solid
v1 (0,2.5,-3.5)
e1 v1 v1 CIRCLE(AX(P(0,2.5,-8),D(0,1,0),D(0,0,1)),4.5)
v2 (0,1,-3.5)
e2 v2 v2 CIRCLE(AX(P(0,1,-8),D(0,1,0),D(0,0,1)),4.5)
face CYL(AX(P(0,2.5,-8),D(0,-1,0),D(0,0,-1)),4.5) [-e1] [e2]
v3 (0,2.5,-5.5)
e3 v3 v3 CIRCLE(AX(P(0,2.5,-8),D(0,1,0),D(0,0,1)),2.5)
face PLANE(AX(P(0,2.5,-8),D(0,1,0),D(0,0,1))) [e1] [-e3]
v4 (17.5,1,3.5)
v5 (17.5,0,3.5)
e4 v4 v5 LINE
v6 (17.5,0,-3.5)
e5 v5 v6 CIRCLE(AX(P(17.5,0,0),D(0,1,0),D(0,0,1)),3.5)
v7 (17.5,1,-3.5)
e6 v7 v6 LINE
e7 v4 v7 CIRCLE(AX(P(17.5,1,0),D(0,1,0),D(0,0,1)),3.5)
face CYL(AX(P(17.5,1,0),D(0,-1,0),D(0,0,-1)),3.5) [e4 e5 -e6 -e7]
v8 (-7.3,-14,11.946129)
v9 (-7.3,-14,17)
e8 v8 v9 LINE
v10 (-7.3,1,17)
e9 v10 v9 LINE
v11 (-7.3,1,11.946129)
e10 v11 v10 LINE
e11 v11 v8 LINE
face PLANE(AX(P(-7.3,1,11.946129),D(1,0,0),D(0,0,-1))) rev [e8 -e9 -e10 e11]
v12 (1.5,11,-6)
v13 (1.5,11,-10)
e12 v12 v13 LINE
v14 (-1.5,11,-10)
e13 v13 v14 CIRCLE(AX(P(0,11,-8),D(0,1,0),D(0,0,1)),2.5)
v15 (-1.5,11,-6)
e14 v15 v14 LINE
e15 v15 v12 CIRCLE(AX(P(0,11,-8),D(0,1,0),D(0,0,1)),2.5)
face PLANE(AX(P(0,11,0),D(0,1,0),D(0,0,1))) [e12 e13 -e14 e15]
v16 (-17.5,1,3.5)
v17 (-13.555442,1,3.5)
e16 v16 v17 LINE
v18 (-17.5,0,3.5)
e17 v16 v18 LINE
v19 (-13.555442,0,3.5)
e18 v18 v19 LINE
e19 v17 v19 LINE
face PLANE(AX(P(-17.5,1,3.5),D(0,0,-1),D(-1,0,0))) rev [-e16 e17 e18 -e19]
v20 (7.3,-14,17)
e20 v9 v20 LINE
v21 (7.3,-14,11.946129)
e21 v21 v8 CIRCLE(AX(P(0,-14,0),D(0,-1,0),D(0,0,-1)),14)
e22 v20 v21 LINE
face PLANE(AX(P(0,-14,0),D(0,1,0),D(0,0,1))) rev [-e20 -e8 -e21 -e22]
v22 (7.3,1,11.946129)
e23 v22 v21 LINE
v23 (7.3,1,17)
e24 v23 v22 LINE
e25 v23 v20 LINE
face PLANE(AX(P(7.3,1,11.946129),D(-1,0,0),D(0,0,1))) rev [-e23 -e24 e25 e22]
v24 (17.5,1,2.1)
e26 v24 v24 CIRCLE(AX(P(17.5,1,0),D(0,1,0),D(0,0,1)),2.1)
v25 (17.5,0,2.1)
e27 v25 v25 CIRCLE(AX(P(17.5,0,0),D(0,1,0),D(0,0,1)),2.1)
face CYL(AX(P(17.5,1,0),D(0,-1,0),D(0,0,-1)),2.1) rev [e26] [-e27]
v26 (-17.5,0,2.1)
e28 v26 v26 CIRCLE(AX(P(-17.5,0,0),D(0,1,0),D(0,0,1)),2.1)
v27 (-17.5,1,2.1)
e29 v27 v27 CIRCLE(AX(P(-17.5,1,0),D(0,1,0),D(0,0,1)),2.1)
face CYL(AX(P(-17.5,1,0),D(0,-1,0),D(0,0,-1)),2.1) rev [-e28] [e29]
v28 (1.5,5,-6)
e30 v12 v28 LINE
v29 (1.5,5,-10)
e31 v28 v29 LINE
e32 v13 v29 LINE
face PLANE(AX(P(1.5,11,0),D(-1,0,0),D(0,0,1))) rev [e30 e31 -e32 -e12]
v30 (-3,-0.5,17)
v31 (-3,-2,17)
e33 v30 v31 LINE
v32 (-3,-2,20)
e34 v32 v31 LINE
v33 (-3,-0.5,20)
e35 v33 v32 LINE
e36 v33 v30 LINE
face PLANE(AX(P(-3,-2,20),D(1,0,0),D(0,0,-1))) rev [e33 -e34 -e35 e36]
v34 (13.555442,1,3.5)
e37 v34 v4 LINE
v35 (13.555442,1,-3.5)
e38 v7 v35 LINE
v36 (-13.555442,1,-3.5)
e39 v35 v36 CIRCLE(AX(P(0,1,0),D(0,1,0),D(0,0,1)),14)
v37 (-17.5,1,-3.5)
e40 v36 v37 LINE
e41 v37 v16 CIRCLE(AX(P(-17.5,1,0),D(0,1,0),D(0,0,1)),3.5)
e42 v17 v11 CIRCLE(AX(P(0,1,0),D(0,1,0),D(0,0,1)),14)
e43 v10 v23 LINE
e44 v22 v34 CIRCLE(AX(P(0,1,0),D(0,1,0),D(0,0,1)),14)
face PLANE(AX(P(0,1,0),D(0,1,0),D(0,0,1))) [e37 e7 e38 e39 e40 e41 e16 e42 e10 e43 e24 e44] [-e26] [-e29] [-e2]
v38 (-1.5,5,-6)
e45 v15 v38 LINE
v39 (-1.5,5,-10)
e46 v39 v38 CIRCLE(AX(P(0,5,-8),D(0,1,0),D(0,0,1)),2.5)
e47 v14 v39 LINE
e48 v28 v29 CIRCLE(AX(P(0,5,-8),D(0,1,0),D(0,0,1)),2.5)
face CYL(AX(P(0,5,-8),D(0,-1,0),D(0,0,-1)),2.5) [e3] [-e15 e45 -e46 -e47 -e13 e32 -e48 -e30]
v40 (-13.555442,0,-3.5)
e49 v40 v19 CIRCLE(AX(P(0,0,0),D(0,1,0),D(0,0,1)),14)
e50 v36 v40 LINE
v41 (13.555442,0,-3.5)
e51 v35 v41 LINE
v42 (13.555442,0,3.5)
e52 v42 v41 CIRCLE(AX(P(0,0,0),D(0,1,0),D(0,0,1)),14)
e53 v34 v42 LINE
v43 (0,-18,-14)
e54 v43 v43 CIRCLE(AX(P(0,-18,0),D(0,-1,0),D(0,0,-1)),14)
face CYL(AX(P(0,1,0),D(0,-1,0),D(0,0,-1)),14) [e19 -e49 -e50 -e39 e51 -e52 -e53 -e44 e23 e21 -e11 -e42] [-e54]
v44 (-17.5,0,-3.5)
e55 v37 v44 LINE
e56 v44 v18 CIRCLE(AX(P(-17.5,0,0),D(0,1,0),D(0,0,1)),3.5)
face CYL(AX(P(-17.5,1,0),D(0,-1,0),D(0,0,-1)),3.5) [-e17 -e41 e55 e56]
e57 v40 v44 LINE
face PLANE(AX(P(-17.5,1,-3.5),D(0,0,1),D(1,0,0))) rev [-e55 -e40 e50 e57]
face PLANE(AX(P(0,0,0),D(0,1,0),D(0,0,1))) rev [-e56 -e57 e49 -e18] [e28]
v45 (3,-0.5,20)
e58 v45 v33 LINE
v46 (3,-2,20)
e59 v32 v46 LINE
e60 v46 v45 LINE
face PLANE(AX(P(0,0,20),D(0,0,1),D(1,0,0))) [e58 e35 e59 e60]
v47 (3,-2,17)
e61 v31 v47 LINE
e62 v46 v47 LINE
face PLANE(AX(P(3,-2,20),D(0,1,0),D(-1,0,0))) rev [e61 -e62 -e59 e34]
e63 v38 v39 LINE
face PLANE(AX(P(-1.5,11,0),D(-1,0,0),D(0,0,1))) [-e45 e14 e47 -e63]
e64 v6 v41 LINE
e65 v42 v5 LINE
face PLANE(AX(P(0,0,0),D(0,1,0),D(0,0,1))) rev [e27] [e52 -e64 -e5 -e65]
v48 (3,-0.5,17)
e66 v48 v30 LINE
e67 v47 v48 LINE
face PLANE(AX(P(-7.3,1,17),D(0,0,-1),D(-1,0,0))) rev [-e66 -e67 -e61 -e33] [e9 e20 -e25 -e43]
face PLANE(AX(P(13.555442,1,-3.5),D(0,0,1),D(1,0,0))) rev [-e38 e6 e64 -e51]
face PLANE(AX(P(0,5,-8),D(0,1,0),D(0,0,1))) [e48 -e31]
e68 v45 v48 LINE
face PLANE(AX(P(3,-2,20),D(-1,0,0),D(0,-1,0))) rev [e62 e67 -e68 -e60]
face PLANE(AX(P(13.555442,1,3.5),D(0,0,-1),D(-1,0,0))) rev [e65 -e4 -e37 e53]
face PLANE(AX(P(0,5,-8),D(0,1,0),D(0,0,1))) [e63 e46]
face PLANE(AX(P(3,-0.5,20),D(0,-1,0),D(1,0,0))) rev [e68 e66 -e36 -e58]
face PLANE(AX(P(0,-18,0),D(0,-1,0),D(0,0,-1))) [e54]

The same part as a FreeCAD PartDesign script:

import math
import FreeCAD as App
import Part
import Sketcher

V = App.Vector

doc = App.newDocument("Part")
params = doc.addObject("Spreadsheet::Sheet", "Params")
for row, (alias, value) in enumerate([
    ("sketch1_radius", "14 mm"),
    ("sketch1_diameter", "4.2 mm"),
    ("sketch1_radius2", "3.5 mm"),
    ("sketch1_width", "14.6 mm"),
    ("pad1_length", "1 mm"),
    ("sketch2_radius", "14 mm"),
    ("sketch2_width", "14.6 mm"),
    ("pad2_length", "14 mm"),
    ("sketch3_diameter", "28 mm"),
    ("pad3_length", "4 mm"),
    ("sketch4_diameter", "9 mm"),
    ("pad4_length", "1.5 mm"),
    ("sketch5_diameter", "5 mm"),
    ("pad5_length", "2.5 mm"),
    ("sketch6_radius", "2.5 mm"),
    ("sketch6_height", "4 mm"),
    ("pad6_length", "6 mm"),
    ("sketch7_width", "6 mm"),
    ("sketch7_height", "1.5 mm"),
    ("pad7_length", "3 mm"),
], start=1):
    params.set(f"A{row}", alias)
    params.set(f"B{row}", "=" + value)
    params.setAlias(f"B{row}", alias)

body = doc.addObject("PartDesign::Body", "Body")

sketch1 = doc.addObject("Sketcher::SketchObject", "Sketch")
body.addObject(sketch1)
sketch1.AttachmentSupport = (doc.XZ_Plane, [""])
sketch1.MapMode = "FlatFace"
sketch1.addGeometry([
    Part.LineSegment(V(-13.555442, -3.5, 0), V(-17.5, -3.5, 0)),
    Part.ArcOfCircle(Part.Circle(V(-17.5, 0, 0), V(0, 0, 1), 3.5), math.radians(90), math.radians(270)),
    Part.LineSegment(V(-17.5, 3.5, 0), V(-13.555442, 3.5, 0)),
    Part.ArcOfCircle(Part.Circle(V(0, 0, 0), V(0, 0, 1), 14), math.radians(121.428126), math.radians(165.522488)),
    Part.LineSegment(V(-7.3, 11.946129, 0), V(-7.3, 17, 0)),
    Part.LineSegment(V(-7.3, 17, 0), V(7.3, 17, 0)),
    Part.LineSegment(V(7.3, 17, 0), V(7.3, 11.946129, 0)),
    Part.ArcOfCircle(Part.Circle(V(0, 0, 0), V(0, 0, 1), 14), math.radians(14.477512), math.radians(58.571874)),
    Part.LineSegment(V(13.555442, 3.5, 0), V(17.5, 3.5, 0)),
    Part.ArcOfCircle(Part.Circle(V(17.5, 0, 0), V(0, 0, 1), 3.5), math.radians(-90), math.radians(90)),
    Part.LineSegment(V(17.5, -3.5, 0), V(13.555442, -3.5, 0)),
    Part.ArcOfCircle(Part.Circle(V(0, 0, 0), V(0, 0, 1), 14), math.radians(-165.522488), math.radians(-14.477512)),
    Part.Circle(V(17.5, 0, 0), V(0, 0, 1), 2.1),
    Part.Circle(V(-17.5, 0, 0), V(0, 0, 1), 2.1),
], False)
sketch1.addConstraint([
    Sketcher.Constraint("Tangent", 0, 2, 1, 2),
    Sketcher.Constraint("Tangent", 1, 1, 2, 1),
    Sketcher.Constraint("Coincident", 2, 2, 3, 2),
    Sketcher.Constraint("Coincident", 3, 1, 4, 1),
    Sketcher.Constraint("Coincident", 4, 2, 5, 1),
    Sketcher.Constraint("Coincident", 5, 2, 6, 1),
    Sketcher.Constraint("Coincident", 6, 2, 7, 2),
    Sketcher.Constraint("Coincident", 7, 1, 8, 1),
    Sketcher.Constraint("Tangent", 8, 2, 9, 2),
    Sketcher.Constraint("Tangent", 9, 1, 10, 1),
    Sketcher.Constraint("Coincident", 10, 2, 11, 2),
    Sketcher.Constraint("Coincident", 11, 1, 0, 1),
    Sketcher.Constraint("Horizontal", 0),
    Sketcher.Constraint("Horizontal", 2),
    Sketcher.Constraint("Vertical", 4),
    Sketcher.Constraint("Horizontal", 5),
    Sketcher.Constraint("Vertical", 6),
    Sketcher.Constraint("Horizontal", 8),
    Sketcher.Constraint("Horizontal", 10),
    Sketcher.Constraint("Coincident", 3, 3, -1, 1),
    Sketcher.Constraint("Coincident", 7, 3, -1, 1),
    Sketcher.Constraint("Coincident", 11, 3, -1, 1),
    Sketcher.Constraint("Coincident", 12, 3, 9, 3),
    Sketcher.Constraint("Coincident", 13, 3, 1, 3),
    Sketcher.Constraint("Equal", 3, 7),
    Sketcher.Constraint("Equal", 1, 9),
    Sketcher.Constraint("Equal", 7, 11),
    Sketcher.Constraint("Equal", 12, 13),
    Sketcher.Constraint("Symmetric", 1, 3, 9, 3, -1, 1),
    Sketcher.Constraint("PointOnObject", 1, 3, -1),
    Sketcher.Constraint("Horizontal", 3, 1, 6, 2),
    Sketcher.Constraint("Radius", 3, 14.0),
    Sketcher.Constraint("Diameter", 12, 4.2),
    Sketcher.Constraint("Radius", 1, 3.5),
    Sketcher.Constraint("DistanceX", 5, 1, 5, 2, 14.6),
    Sketcher.Constraint("DistanceY", -1, 1, 4, 2, 17.0),
    Sketcher.Constraint("DistanceX", 1, 3, 9, 3, 35.0),
])
sketch1.setExpression("Constraints[31]", "Params.sketch1_radius")
sketch1.setExpression("Constraints[32]", "Params.sketch1_diameter")
sketch1.setExpression("Constraints[33]", "Params.sketch1_radius2")
sketch1.setExpression("Constraints[34]", "Params.sketch1_width")
pad1 = doc.addObject("PartDesign::Pad", "Pad")
body.addObject(pad1)
pad1.Profile = sketch1
pad1.setExpression("Length", "Params.pad1_length")
pad1.Reversed = True

sketch2 = doc.addObject("Sketcher::SketchObject", "Sketch001")
body.addObject(sketch2)
sketch2.AttachmentSupport = (doc.XZ_Plane, [""])
sketch2.MapMode = "FlatFace"
sketch2.AttachmentOffset = App.Placement(V(0, 0, 14), App.Rotation())
sketch2.addGeometry([
    Part.LineSegment(V(-7.3, 17, 0), V(7.3, 17, 0)),
    Part.LineSegment(V(7.3, 17, 0), V(7.3, 11.946129, 0)),
    Part.ArcOfCircle(Part.Circle(V(0, 0, 0), V(0, 0, 1), 14), math.radians(121.428126), math.radians(418.571874)),
    Part.LineSegment(V(-7.3, 11.946129, 0), V(-7.3, 17, 0)),
], False)
sketch2.addConstraint([
    Sketcher.Constraint("Coincident", 0, 2, 1, 1),
    Sketcher.Constraint("Coincident", 1, 2, 2, 2),
    Sketcher.Constraint("Coincident", 2, 1, 3, 1),
    Sketcher.Constraint("Coincident", 3, 2, 0, 1),
    Sketcher.Constraint("Horizontal", 0),
    Sketcher.Constraint("Vertical", 1),
    Sketcher.Constraint("Vertical", 3),
    Sketcher.Constraint("Coincident", 2, 3, -1, 1),
    Sketcher.Constraint("Horizontal", 1, 2, 2, 1),
    Sketcher.Constraint("Radius", 2, 14.0),
    Sketcher.Constraint("DistanceX", 0, 1, 0, 2, 14.6),
    Sketcher.Constraint("DistanceY", -1, 1, 0, 2, 17.0),
])
sketch2.setExpression("Constraints[9]", "Params.sketch2_radius")
sketch2.setExpression("Constraints[10]", "Params.sketch2_width")
pad2 = doc.addObject("PartDesign::Pad", "Pad001")
body.addObject(pad2)
pad2.Profile = sketch2
pad2.setExpression("Length", "Params.pad2_length")
pad2.Reversed = True

sketch3 = doc.addObject("Sketcher::SketchObject", "Sketch002")
body.addObject(sketch3)
sketch3.AttachmentSupport = (doc.XZ_Plane, [""])
sketch3.MapMode = "FlatFace"
sketch3.AttachmentOffset = App.Placement(V(0, 0, 18), App.Rotation())
sketch3.addGeometry(Part.Circle(V(0, 0, 0), V(0, 0, 1), 14), False)
sketch3.addConstraint([
    Sketcher.Constraint("Coincident", 0, 3, -1, 1),
    Sketcher.Constraint("Diameter", 0, 28.0),
])
sketch3.setExpression("Constraints[1]", "Params.sketch3_diameter")
pad3 = doc.addObject("PartDesign::Pad", "Pad002")
body.addObject(pad3)
pad3.Profile = sketch3
pad3.setExpression("Length", "Params.pad3_length")
pad3.Reversed = True

sketch4 = doc.addObject("Sketcher::SketchObject", "Sketch003")
body.addObject(sketch4)
sketch4.AttachmentSupport = (doc.XZ_Plane, [""])
sketch4.MapMode = "FlatFace"
sketch4.AttachmentOffset = App.Placement(V(0, 0, -1), App.Rotation())
sketch4.addGeometry(Part.Circle(V(0, -8, 0), V(0, 0, 1), 4.5), False)
sketch4.addConstraint([
    Sketcher.Constraint("PointOnObject", 0, 3, -2),
    Sketcher.Constraint("Diameter", 0, 9.0),
    Sketcher.Constraint("DistanceY", 0, 3, -1, 1, 8.0),
])
sketch4.setExpression("Constraints[1]", "Params.sketch4_diameter")
pad4 = doc.addObject("PartDesign::Pad", "Pad003")
body.addObject(pad4)
pad4.Profile = sketch4
pad4.setExpression("Length", "Params.pad4_length")
pad4.Reversed = True

sketch5 = doc.addObject("Sketcher::SketchObject", "Sketch004")
body.addObject(sketch5)
sketch5.AttachmentSupport = (doc.XZ_Plane, [""])
sketch5.MapMode = "FlatFace"
sketch5.AttachmentOffset = App.Placement(V(0, 0, -2.5), App.Rotation())
sketch5.addGeometry(Part.Circle(V(0, -8, 0), V(0, 0, 1), 2.5), False)
sketch5.addConstraint([
    Sketcher.Constraint("PointOnObject", 0, 3, -2),
    Sketcher.Constraint("Diameter", 0, 5.0),
    Sketcher.Constraint("DistanceY", 0, 3, -1, 1, 8.0),
])
sketch5.setExpression("Constraints[1]", "Params.sketch5_diameter")
pad5 = doc.addObject("PartDesign::Pad", "Pad004")
body.addObject(pad5)
pad5.Profile = sketch5
pad5.setExpression("Length", "Params.pad5_length")
pad5.Reversed = True

sketch6 = doc.addObject("Sketcher::SketchObject", "Sketch005")
body.addObject(sketch6)
sketch6.AttachmentSupport = (doc.XZ_Plane, [""])
sketch6.MapMode = "FlatFace"
sketch6.AttachmentOffset = App.Placement(V(0, 0, -5), App.Rotation())
sketch6.addGeometry([
    Part.ArcOfCircle(Part.Circle(V(0, -8, 0), V(0, 0, 1), 2.5), math.radians(53.130102), math.radians(126.869898)),
    Part.LineSegment(V(1.5, -6, 0), V(1.5, -10, 0)),
    Part.ArcOfCircle(Part.Circle(V(0, -8, 0), V(0, 0, 1), 2.5), math.radians(-126.869898), math.radians(-53.130102)),
    Part.LineSegment(V(-1.5, -10, 0), V(-1.5, -6, 0)),
], False)
sketch6.addConstraint([
    Sketcher.Constraint("Coincident", 0, 1, 1, 1),
    Sketcher.Constraint("Coincident", 1, 2, 2, 2),
    Sketcher.Constraint("Coincident", 2, 1, 3, 1),
    Sketcher.Constraint("Coincident", 3, 2, 0, 2),
    Sketcher.Constraint("Vertical", 1),
    Sketcher.Constraint("Vertical", 3),
    Sketcher.Constraint("Coincident", 2, 3, 0, 3),
    Sketcher.Constraint("Equal", 0, 2),
    Sketcher.Constraint("Symmetric", 1, 2, 2, 1, -2),
    Sketcher.Constraint("Radius", 0, 2.5),
    Sketcher.Constraint("DistanceY", 1, 2, 1, 1, 4.0),
    Sketcher.Constraint("DistanceY", 0, 3, -1, 1, 8.0),
])
sketch6.setExpression("Constraints[9]", "Params.sketch6_radius")
sketch6.setExpression("Constraints[10]", "Params.sketch6_height")
pad6 = doc.addObject("PartDesign::Pad", "Pad005")
body.addObject(pad6)
pad6.Profile = sketch6
pad6.setExpression("Length", "Params.pad6_length")
pad6.Reversed = True

sketch7 = doc.addObject("Sketcher::SketchObject", "Sketch006")
body.addObject(sketch7)
sketch7.AttachmentSupport = (doc.XY_Plane, [""])
sketch7.MapMode = "FlatFace"
sketch7.AttachmentOffset = App.Placement(V(0, 0, 17), App.Rotation())
sketch7.addGeometry([
    Part.LineSegment(V(-3, -0.5, 0), V(-3, -2, 0)),
    Part.LineSegment(V(-3, -2, 0), V(3, -2, 0)),
    Part.LineSegment(V(3, -2, 0), V(3, -0.5, 0)),
    Part.LineSegment(V(3, -0.5, 0), V(-3, -0.5, 0)),
], False)
sketch7.addConstraint([
    Sketcher.Constraint("Coincident", 0, 2, 1, 1),
    Sketcher.Constraint("Coincident", 1, 2, 2, 1),
    Sketcher.Constraint("Coincident", 2, 2, 3, 1),
    Sketcher.Constraint("Coincident", 3, 2, 0, 1),
    Sketcher.Constraint("Vertical", 0),
    Sketcher.Constraint("Horizontal", 1),
    Sketcher.Constraint("Vertical", 2),
    Sketcher.Constraint("Horizontal", 3),
    Sketcher.Constraint("DistanceX", 1, 1, 1, 2, 6.0),
    Sketcher.Constraint("DistanceY", 0, 2, 0, 1, 1.5),
    Sketcher.Constraint("DistanceX", 0, 2, -1, 1, 3.0),
    Sketcher.Constraint("DistanceY", 0, 2, -1, 1, 2.0),
])
sketch7.setExpression("Constraints[8]", "Params.sketch7_width")
sketch7.setExpression("Constraints[9]", "Params.sketch7_height")
pad7 = doc.addObject("PartDesign::Pad", "Pad006")
body.addObject(pad7)
pad7.Profile = sketch7
pad7.setExpression("Length", "Params.pad7_length")

doc.recompute()
